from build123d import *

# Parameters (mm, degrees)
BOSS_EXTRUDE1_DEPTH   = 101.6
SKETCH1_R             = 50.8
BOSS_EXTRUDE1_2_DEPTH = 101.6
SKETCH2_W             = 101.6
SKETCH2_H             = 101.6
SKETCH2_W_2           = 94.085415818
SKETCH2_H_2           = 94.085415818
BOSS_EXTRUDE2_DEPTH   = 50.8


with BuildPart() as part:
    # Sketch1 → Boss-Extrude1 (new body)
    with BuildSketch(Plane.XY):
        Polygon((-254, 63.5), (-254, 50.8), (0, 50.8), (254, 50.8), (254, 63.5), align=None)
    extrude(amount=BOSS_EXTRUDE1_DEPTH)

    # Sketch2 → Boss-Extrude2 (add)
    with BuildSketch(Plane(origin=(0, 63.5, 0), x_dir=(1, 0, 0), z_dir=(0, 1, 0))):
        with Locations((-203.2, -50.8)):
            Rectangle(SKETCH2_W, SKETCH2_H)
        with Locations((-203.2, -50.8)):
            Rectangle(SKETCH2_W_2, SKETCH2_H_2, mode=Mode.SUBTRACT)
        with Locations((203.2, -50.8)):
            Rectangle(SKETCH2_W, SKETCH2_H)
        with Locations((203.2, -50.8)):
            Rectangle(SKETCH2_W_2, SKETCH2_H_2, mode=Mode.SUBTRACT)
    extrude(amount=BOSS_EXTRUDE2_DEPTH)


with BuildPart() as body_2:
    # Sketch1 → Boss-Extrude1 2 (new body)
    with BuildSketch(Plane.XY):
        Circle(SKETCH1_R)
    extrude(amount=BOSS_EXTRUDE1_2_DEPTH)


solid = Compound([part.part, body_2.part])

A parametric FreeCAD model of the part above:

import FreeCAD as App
import Part
import Sketcher
from FreeCAD import Vector
Q = App.Units.Quantity

doc = App.newDocument("Part")
body = doc.addObject("PartDesign::Body", "Body")

sketch1 = body.newObject("Sketcher::SketchObject", "Sketch")
sketch1.AttachmentSupport = (doc.getObject("XY_Plane"), [""])
sketch1.MapMode = "FlatFace"
sketch1.addGeometry([
    Part.LineSegment(Vector(-254, 63.5, 0), Vector(-254, 50.8, 0)),
    Part.LineSegment(Vector(-254, 50.8, 0), Vector(254, 50.8, 0)),
    Part.LineSegment(Vector(254, 50.8, 0), Vector(254, 63.5, 0)),
    Part.LineSegment(Vector(254, 63.5, 0), Vector(-254, 63.5, 0)),
], False)
sketch1.addConstraint([
    Sketcher.Constraint("Coincident", 0, 2, 1, 1),
    Sketcher.Constraint("Coincident", 1, 2, 2, 1),
    Sketcher.Constraint("Coincident", 2, 2, 3, 1),
    Sketcher.Constraint("Coincident", 3, 2, 0, 1),
    Sketcher.Constraint("Vertical", 0),
    Sketcher.Constraint("Horizontal", 1),
    Sketcher.Constraint("Vertical", 2),
    Sketcher.Constraint("Horizontal", 3),
    Sketcher.Constraint("DistanceX", 1, 1, 1, 2, Q("20 in")),
    Sketcher.Constraint("DistanceY", 0, 2, 0, 1, Q("0.5 in")),
    Sketcher.Constraint("DistanceX", 0, 2, -1, 1, Q("10 in")),
    Sketcher.Constraint("DistanceY", -1, 1, 0, 2, Q("2 in")),
])
pad1 = body.newObject("PartDesign::Pad", "Pad")
pad1.Profile = sketch1
pad1.Length = Q("4 in")

sketch2 = body.newObject("Sketcher::SketchObject", "Sketch001")
sketch2.AttachmentSupport = (doc.getObject("XZ_Plane"), [""])
sketch2.MapMode = "FlatFace"
sketch2.AttachmentOffset = App.Placement(Vector(0, 0, -2.5 * 25.4), App.Rotation())
sketch2.addGeometry([
    Part.LineSegment(Vector(-254, 0, 0), Vector(-254, 101.6, 0)),
    Part.LineSegment(Vector(-254, 101.6, 0), Vector(-152.4, 101.6, 0)),
    Part.LineSegment(Vector(-152.4, 101.6, 0), Vector(-152.4, 0, 0)),
    Part.LineSegment(Vector(-152.4, 0, 0), Vector(-254, 0, 0)),
    Part.LineSegment(Vector(-156.157292, 97.842708, 0), Vector(-250.242708, 97.842708, 0)),
    Part.LineSegment(Vector(-250.242708, 97.842708, 0), Vector(-250.242708, 3.757292, 0)),
    Part.LineSegment(Vector(-250.242708, 3.757292, 0), Vector(-156.157292, 3.757292, 0)),
    Part.LineSegment(Vector(-156.157292, 3.757292, 0), Vector(-156.157292, 97.842708, 0)),
    Part.LineSegment(Vector(152.4, 0, 0), Vector(152.4, 101.6, 0)),
    Part.LineSegment(Vector(152.4, 101.6, 0), Vector(254, 101.6, 0)),
    Part.LineSegment(Vector(254, 101.6, 0), Vector(254, 0, 0)),
    Part.LineSegment(Vector(254, 0, 0), Vector(152.4, 0, 0)),
    Part.LineSegment(Vector(250.242708, 97.842708, 0), Vector(156.157292, 97.842708, 0)),
    Part.LineSegment(Vector(156.157292, 97.842708, 0), Vector(156.157292, 3.757292, 0)),
    Part.LineSegment(Vector(156.157292, 3.757292, 0), Vector(250.242708, 3.757292, 0)),
    Part.LineSegment(Vector(250.242708, 3.757292, 0), Vector(250.242708, 97.842708, 0)),
], False)
sketch2.addConstraint([
    Sketcher.Constraint("Coincident", 0, 2, 1, 1),
    Sketcher.Constraint("Coincident", 1, 2, 2, 1),
    Sketcher.Constraint("Coincident", 2, 2, 3, 1),
    Sketcher.Constraint("Coincident", 3, 2, 0, 1),
    Sketcher.Constraint("Coincident", 4, 2, 5, 1),
    Sketcher.Constraint("Coincident", 5, 2, 6, 1),
    Sketcher.Constraint("Coincident", 6, 2, 7, 1),
    Sketcher.Constraint("Coincident", 7, 2, 4, 1),
    Sketcher.Constraint("Coincident", 8, 2, 9, 1),
    Sketcher.Constraint("Coincident", 9, 2, 10, 1),
    Sketcher.Constraint("Coincident", 10, 2, 11, 1),
    Sketcher.Constraint("Coincident", 11, 2, 8, 1),
    Sketcher.Constraint("Coincident", 12, 2, 13, 1),
    Sketcher.Constraint("Coincident", 13, 2, 14, 1),
    Sketcher.Constraint("Coincident", 14, 2, 15, 1),
    Sketcher.Constraint("Coincident", 15, 2, 12, 1),
    Sketcher.Constraint("Vertical", 0),
    Sketcher.Constraint("Horizontal", 1),
    Sketcher.Constraint("Vertical", 2),
    Sketcher.Constraint("Horizontal", 3),
    Sketcher.Constraint("Horizontal", 4),
    Sketcher.Constraint("Vertical", 5),
    Sketcher.Constraint("Horizontal", 6),
    Sketcher.Constraint("Vertical", 7),
    Sketcher.Constraint("Vertical", 8),
    Sketcher.Constraint("Horizontal", 9),
    Sketcher.Constraint("Vertical", 10),
    Sketcher.Constraint("Horizontal", 11),
    Sketcher.Constraint("Horizontal", 12),
    Sketcher.Constraint("Vertical", 13),
    Sketcher.Constraint("Horizontal", 14),
    Sketcher.Constraint("Vertical", 15),
    Sketcher.Constraint("Symmetric", 3, 2, 10, 2, -1, 1),
    Sketcher.Constraint("Symmetric", 1, 2, 8, 2, -2),
    Sketcher.Constraint("Symmetric", 7, 2, 12, 2, -2),
    Sketcher.Constraint("Symmetric", 5, 2, 14, 2, -2),
    Sketcher.Constraint("PointOnObject", 2, 2, -1),
    Sketcher.Constraint("Equal", 11, 0),
    Sketcher.Constraint("Equal", 14, 5),
    Sketcher.Constraint("DistanceX", 1, 1, 1, 2, Q("4 in")),
    Sketcher.Constraint("DistanceX", 0, 2, -1, 1, Q("10 in")),
    Sketcher.Constraint("DistanceX", 4, 2, 4, 1, 94.085416),
    Sketcher.Constraint("DistanceX", 4, 2, -1, 1, 250.242708),
    Sketcher.Constraint("DistanceY", -1, 1, 4, 2, 97.842708),
])
pad2 = body.newObject("PartDesign::Pad", "Pad001")
pad2.Profile = sketch2
pad2.Length = Q("2 in")
pad2.Reversed = True
body2 = doc.addObject("PartDesign::Body", "Body001")

sketch3 = body2.newObject("Sketcher::SketchObject", "Sketch002")
sketch3.AttachmentSupport = (doc.getObject("XY_Plane001"), [""])
sketch3.MapMode = "FlatFace"
sketch3.addGeometry(Part.Circle(Vector(0, 0, 0), Vector(0, 0, 1), 50.8), False)
sketch3.addConstraint([
    Sketcher.Constraint("Coincident", 0, 3, -1, 1),
    Sketcher.Constraint("Diameter", 0, Q("4 in")),
])
pad3 = body2.newObject("PartDesign::Pad", "Pad002")
pad3.Profile = sketch3
pad3.Length = Q("4 in")

doc.recompute()
